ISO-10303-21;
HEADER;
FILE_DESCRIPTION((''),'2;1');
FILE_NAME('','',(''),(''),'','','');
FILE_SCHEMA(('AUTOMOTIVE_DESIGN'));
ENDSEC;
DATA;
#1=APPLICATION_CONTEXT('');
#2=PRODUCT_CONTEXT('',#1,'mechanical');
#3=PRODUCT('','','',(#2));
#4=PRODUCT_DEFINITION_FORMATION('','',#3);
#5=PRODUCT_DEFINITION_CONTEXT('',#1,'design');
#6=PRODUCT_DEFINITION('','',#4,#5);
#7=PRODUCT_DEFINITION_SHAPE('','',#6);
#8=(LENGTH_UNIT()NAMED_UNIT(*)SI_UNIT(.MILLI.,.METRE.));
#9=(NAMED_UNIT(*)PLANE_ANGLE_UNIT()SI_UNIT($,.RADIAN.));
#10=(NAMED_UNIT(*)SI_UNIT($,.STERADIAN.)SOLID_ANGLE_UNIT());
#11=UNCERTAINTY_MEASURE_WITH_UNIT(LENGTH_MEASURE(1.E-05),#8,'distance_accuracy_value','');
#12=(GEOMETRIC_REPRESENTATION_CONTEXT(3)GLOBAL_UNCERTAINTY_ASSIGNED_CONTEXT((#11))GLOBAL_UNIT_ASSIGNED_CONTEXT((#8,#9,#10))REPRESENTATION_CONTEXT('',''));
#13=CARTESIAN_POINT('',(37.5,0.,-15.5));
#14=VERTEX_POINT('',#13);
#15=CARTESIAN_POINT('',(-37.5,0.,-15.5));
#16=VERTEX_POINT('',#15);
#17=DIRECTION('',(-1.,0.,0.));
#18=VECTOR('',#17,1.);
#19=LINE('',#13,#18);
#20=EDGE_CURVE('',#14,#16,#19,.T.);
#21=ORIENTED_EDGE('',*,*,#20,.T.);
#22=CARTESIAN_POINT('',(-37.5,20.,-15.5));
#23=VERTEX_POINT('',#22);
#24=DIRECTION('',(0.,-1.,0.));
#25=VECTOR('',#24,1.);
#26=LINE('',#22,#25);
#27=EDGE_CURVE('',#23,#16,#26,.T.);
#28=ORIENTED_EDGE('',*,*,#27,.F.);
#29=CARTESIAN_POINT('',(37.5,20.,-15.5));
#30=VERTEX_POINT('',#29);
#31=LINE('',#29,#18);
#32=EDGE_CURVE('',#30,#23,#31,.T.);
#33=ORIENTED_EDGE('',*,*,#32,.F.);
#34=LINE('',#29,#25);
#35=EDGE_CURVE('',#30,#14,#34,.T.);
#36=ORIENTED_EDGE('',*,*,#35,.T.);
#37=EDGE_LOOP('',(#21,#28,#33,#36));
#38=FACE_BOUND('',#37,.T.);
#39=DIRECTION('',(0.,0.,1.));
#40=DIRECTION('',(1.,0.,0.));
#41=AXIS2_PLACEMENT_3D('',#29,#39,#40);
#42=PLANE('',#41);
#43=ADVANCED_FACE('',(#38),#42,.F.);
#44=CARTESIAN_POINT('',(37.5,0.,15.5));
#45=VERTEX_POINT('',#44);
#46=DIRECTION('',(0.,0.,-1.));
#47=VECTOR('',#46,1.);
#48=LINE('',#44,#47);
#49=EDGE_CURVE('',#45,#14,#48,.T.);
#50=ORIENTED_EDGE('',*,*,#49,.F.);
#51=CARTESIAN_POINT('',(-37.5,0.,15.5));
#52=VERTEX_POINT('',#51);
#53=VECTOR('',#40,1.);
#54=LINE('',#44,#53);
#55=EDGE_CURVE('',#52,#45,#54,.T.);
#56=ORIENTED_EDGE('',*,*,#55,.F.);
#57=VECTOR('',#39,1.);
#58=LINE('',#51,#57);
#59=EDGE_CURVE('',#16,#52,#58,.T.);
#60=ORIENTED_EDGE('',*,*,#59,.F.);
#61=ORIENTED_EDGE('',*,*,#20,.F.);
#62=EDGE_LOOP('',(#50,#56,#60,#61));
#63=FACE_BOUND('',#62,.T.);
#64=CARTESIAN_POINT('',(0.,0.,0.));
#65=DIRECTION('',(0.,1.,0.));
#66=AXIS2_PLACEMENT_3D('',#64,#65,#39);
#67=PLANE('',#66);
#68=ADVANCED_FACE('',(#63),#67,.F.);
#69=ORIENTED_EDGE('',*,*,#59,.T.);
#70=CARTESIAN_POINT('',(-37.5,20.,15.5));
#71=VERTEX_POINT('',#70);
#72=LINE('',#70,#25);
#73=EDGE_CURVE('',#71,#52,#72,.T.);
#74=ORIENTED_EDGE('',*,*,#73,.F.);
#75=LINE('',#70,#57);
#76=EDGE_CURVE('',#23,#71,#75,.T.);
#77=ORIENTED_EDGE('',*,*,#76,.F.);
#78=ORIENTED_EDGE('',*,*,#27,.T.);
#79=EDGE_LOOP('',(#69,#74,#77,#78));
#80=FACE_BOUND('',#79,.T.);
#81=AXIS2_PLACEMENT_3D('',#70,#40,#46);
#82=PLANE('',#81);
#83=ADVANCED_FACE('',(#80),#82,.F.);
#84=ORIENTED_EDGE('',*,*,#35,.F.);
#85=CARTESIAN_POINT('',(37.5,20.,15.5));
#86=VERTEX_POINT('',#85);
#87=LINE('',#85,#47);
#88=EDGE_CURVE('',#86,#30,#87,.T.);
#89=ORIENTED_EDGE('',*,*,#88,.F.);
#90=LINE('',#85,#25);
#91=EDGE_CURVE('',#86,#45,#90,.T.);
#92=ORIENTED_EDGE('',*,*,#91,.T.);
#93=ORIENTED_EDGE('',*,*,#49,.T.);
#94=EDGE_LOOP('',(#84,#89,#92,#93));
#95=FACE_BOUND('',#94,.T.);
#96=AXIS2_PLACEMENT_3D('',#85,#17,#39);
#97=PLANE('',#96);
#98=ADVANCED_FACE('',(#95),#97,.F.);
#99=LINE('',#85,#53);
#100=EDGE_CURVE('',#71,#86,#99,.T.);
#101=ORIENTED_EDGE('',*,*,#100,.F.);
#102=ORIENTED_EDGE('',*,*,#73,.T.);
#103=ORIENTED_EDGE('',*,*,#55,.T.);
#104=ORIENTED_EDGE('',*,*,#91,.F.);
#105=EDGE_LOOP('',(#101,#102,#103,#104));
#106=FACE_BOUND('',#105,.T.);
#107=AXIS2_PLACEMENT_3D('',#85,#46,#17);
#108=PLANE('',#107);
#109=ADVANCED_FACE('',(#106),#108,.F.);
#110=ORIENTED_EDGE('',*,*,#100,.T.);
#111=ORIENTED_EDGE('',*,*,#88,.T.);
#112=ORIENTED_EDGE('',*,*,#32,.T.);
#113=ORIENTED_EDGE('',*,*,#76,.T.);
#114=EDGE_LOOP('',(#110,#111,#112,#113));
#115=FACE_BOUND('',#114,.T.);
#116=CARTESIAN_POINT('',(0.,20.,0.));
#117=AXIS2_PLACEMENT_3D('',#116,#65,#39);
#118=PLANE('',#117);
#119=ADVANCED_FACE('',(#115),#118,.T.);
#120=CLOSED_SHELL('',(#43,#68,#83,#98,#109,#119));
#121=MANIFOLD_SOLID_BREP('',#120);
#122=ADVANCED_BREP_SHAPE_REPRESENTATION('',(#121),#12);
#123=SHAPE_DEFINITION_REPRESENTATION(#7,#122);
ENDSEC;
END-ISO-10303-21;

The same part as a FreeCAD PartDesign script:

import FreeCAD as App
import Part
import Sketcher


def add_polygon(sketch, points):
    """Adds a closed chain of lines whose ends are joined by coincident constraints."""
    first, n = sketch.GeometryCount, len(points)
    for a, b in zip(points, points[1:] + points[:1]):
        sketch.addGeometry(Part.LineSegment(App.Vector(*a, 0), App.Vector(*b, 0)), False)
    for i in range(n):
        sketch.addConstraint(Sketcher.Constraint("Coincident", first + i, 2, first + (i + 1) % n, 1))

doc = App.newDocument("Part")
body = doc.addObject("PartDesign::Body", "Body")

sketch1 = body.newObject("Sketcher::SketchObject", "Sketch")
sketch1.AttachmentSupport = (doc.getObject("XZ_Plane"), [""])
sketch1.MapMode = "FlatFace"
add_polygon(sketch1, [(-38, -16), (-38, 16), (38, 16), (38, -16)])
sketch1.addConstraint([
    Sketcher.Constraint("Vertical", 0),
    Sketcher.Constraint("Horizontal", 1),
    Sketcher.Constraint("Vertical", 2),
    Sketcher.Constraint("Horizontal", 3),
    Sketcher.Constraint("Symmetric", 0, 2, 2, 2, -1, 1),
    Sketcher.Constraint("DistanceX", 1, 1, 1, 2, 75.0),
    Sketcher.Constraint("DistanceY", 0, 1, 0, 2, 31.0),
])
pad1 = body.newObject("PartDesign::Pad", "Pad")
pad1.Profile = sketch1
pad1.Length = 20
pad1.Reversed = True

doc.recompute()
